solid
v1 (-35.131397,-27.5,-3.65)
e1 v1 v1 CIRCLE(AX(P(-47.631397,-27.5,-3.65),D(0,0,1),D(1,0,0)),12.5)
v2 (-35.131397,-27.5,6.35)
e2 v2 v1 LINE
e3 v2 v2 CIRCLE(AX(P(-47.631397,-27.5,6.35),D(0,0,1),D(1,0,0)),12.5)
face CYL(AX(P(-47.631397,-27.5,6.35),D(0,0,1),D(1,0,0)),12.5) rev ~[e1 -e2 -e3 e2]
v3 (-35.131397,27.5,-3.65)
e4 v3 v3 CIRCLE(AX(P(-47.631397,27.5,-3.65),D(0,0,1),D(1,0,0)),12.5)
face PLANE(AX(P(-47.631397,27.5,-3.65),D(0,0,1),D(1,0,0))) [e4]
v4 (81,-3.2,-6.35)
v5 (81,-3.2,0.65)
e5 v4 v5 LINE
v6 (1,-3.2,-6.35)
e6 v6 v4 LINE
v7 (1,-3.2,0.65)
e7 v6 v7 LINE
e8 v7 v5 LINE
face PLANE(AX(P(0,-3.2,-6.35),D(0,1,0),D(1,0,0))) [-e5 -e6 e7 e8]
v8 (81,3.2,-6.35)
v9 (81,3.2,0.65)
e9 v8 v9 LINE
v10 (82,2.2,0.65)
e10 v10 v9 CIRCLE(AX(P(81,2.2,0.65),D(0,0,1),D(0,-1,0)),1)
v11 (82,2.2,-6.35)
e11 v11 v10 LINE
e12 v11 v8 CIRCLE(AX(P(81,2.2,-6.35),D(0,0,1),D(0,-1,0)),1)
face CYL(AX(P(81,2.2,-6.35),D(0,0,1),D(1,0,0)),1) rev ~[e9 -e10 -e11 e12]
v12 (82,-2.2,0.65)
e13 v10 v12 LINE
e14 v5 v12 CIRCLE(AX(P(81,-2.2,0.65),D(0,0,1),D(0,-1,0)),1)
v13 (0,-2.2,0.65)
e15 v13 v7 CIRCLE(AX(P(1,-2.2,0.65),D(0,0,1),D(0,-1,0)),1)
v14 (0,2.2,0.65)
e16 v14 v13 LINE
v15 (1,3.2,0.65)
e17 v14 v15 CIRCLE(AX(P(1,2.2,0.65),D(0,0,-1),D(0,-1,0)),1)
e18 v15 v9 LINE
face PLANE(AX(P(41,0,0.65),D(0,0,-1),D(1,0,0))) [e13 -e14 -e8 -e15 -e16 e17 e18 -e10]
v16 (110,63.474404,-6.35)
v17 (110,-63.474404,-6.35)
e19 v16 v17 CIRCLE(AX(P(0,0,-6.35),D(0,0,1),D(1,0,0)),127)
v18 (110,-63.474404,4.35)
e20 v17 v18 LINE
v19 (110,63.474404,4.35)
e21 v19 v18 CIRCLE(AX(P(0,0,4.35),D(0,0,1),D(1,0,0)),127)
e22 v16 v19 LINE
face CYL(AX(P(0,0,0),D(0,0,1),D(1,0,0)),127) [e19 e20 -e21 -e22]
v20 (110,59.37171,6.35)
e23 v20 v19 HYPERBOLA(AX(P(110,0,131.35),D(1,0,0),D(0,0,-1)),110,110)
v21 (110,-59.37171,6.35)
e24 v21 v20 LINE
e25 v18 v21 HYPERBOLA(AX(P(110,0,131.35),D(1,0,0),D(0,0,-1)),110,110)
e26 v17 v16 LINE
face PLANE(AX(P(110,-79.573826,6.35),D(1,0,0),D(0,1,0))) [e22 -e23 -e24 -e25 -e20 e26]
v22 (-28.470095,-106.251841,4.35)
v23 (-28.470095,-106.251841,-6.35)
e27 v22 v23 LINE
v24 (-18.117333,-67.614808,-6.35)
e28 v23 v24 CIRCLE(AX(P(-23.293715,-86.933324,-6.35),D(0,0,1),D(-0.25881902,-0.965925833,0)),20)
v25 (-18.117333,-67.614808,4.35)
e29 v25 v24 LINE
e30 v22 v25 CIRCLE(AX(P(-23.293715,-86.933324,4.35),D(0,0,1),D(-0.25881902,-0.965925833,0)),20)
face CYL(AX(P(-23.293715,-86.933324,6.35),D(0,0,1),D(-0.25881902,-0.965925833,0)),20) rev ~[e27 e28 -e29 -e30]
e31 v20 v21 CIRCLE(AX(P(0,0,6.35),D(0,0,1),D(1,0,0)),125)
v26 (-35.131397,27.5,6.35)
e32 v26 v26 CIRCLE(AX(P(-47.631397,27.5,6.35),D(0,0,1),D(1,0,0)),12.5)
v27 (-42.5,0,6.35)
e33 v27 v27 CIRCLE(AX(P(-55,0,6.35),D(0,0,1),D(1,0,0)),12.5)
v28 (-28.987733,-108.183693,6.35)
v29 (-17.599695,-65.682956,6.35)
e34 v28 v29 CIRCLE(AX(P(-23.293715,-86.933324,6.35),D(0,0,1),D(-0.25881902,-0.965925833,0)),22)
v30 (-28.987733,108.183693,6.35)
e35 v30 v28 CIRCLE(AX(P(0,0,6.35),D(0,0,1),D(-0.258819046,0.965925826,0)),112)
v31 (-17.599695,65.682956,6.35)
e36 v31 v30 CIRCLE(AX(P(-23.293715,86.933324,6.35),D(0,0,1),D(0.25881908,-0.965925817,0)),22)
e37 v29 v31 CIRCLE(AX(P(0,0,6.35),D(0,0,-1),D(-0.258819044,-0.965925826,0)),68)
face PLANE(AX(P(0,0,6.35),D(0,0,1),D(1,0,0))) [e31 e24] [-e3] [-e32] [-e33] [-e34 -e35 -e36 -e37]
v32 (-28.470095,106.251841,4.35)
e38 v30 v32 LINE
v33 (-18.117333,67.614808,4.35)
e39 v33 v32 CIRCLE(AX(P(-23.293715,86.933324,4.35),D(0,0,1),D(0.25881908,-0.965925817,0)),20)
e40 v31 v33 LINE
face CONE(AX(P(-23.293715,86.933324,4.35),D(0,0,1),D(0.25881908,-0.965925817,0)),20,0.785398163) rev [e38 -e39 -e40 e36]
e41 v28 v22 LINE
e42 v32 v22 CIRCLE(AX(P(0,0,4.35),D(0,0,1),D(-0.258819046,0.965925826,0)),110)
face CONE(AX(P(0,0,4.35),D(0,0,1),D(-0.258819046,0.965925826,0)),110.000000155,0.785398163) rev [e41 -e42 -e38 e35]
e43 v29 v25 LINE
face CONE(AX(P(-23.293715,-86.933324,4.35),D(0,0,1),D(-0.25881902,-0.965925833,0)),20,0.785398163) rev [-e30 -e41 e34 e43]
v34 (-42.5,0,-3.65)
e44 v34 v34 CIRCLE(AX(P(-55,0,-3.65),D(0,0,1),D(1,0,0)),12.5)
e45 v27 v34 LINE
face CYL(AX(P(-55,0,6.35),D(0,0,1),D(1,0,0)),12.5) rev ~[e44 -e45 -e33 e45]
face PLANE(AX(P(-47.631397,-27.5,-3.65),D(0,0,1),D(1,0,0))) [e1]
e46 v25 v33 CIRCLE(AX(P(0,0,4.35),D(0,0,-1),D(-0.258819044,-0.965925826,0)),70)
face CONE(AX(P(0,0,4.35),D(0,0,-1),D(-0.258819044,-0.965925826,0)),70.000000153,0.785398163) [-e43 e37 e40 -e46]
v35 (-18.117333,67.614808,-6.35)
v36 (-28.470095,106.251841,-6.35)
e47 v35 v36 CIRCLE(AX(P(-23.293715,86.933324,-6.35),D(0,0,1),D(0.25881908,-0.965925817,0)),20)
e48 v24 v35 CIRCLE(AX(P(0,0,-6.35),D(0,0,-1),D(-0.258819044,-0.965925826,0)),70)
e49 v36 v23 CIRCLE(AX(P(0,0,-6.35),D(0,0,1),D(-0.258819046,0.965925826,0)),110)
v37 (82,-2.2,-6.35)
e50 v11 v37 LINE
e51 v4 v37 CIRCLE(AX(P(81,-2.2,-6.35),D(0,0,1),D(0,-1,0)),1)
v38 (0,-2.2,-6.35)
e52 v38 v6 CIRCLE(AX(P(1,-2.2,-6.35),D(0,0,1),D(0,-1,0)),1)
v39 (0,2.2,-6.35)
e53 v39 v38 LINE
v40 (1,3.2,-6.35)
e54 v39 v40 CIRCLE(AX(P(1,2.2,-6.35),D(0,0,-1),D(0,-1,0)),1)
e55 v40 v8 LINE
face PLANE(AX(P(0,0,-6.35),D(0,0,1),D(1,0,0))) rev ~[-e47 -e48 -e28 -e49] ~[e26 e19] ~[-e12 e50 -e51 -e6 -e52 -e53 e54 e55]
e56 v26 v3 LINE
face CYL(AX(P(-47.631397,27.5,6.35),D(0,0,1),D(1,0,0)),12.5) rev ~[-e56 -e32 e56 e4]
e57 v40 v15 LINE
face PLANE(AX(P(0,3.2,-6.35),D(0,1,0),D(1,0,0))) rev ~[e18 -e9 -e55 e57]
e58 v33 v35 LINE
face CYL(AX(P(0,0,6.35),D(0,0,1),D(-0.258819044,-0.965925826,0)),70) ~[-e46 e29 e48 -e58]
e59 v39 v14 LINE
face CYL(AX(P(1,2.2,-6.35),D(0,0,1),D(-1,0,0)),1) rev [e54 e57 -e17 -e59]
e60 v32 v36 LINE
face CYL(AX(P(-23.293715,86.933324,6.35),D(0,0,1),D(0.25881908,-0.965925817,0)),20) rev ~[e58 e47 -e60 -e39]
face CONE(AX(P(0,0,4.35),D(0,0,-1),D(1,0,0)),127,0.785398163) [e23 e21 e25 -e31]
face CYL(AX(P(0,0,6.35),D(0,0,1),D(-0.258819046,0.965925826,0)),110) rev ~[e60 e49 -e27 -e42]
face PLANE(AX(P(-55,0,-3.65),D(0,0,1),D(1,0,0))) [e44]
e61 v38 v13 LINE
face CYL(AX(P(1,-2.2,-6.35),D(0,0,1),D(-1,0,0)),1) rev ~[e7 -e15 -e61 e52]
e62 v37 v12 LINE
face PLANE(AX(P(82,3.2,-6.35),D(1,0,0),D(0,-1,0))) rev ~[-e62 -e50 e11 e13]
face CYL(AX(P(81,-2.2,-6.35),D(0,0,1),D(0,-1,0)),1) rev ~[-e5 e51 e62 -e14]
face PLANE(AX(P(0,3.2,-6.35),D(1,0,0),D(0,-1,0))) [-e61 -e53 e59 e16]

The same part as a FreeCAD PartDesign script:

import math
import FreeCAD as App
import Part
import Sketcher

V = App.Vector


def edges_at(feature, points):
    """Names of the edges that pass closest to the given points."""
    edges = feature.Shape.Edges
    near = lambda p: min(range(len(edges)), key=lambda i: edges[i].distToShape(Part.Vertex(*p))[0])
    return sorted({f"Edge{near(p) + 1}" for p in points})


def add_polygon(sketch, points):
    """Adds a closed chain of lines whose ends are joined by coincident constraints."""
    first, n = sketch.GeometryCount, len(points)
    for a, b in zip(points, points[1:] + points[:1]):
        sketch.addGeometry(Part.LineSegment(App.Vector(*a, 0), App.Vector(*b, 0)), False)
    for i in range(n):
        sketch.addConstraint(Sketcher.Constraint("Coincident", first + i, 2, first + (i + 1) % n, 1))

doc = App.newDocument("Part")
params = doc.addObject("Spreadsheet::Sheet", "Params")
for row, (alias, value) in enumerate([
    ("sketch1_diameter", "254 mm"),
    ("pad1_length", "12.7 mm"),
    ("sketch2_radius", "70 mm"),
    ("sketch2_radius2", "20 mm"),
    ("sketch3_diameter", "25 mm"),
    ("pocket2_length", "10 mm"),
    ("chamfer_size", "2 mm"),
    ("sketch5_width", "82 mm"),
    ("sketch5_height", "6.4 mm"),
    ("pocket4_length", "7 mm"),
    ("fillet_radius", "1 mm"),
], start=1):
    params.set(f"A{row}", alias)
    params.set(f"B{row}", "=" + value)
    params.setAlias(f"B{row}", alias)

body = doc.addObject("PartDesign::Body", "Body")

# Sketch on XY plane
sketch1 = body.newObject("Sketcher::SketchObject", "Sketch")
sketch1.AttachmentSupport = (doc.getObject("XY_Plane"), [""])
sketch1.MapMode = "FlatFace"
sketch1.addGeometry(Part.Circle(V(0, 0, 0), V(0, 0, 1), 127), False)
sketch1.addConstraint([
    Sketcher.Constraint("Coincident", 0, 3, -1, 1),
    Sketcher.Constraint("Diameter", 0, 254.0),
])
sketch1.setExpression("Constraints[1]", "Params.sketch1_diameter")
pad1 = body.newObject("PartDesign::Pad", "Pad")
pad1.Profile = sketch1
pad1.setExpression("Length", "Params.pad1_length")
pad1.Midplane = True

# Sketch on XY plane
sketch2 = body.newObject("Sketcher::SketchObject", "Sketch001")
sketch2.AttachmentSupport = (doc.getObject("XY_Plane"), [""])
sketch2.MapMode = "FlatFace"
sketch2.AttachmentOffset = App.Placement(V(0, 0, 6.35), App.Rotation())
sketch2.addGeometry([
    Part.ArcOfCircle(Part.Circle(V(0, 0, 0), V(0, 0, 1), 70), math.radians(105), math.radians(255)),
    Part.ArcOfCircle(Part.Circle(V(-23, 87, 0), V(0, 0, 1), 20), math.radians(-75), math.radians(105)),
    Part.ArcOfCircle(Part.Circle(V(0, 0, 0), V(0, 0, 1), 110), math.radians(105), math.radians(255)),
    Part.ArcOfCircle(Part.Circle(V(-23, -87, 0), V(0, 0, 1), 20), math.radians(-105), math.radians(75)),
], False)
sketch2.addConstraint([
    Sketcher.Constraint("Tangent", 0, 1, 1, 1),
    Sketcher.Constraint("Tangent", 1, 2, 2, 1),
    Sketcher.Constraint("Tangent", 2, 2, 3, 1),
    Sketcher.Constraint("Tangent", 3, 2, 0, 2),
    Sketcher.Constraint("Coincident", 0, 3, -1, 1),
    Sketcher.Constraint("Coincident", 2, 3, -1, 1),
    Sketcher.Constraint("Vertical", 1, 3, 3, 3),
    Sketcher.Constraint("Radius", 0, 70.0),
    Sketcher.Constraint("Radius", 1, 20.0),
    Sketcher.Constraint("DistanceY", -1, 1, 1, 2, 106.251841),
])
sketch2.setExpression("Constraints[7]", "Params.sketch2_radius")
sketch2.setExpression("Constraints[8]", "Params.sketch2_radius2")
pocket1 = body.newObject("PartDesign::Pocket", "Pocket")
pocket1.Profile = sketch2
pocket1.Type = "ThroughAll"

# Sketch on XY plane
sketch3 = body.newObject("Sketcher::SketchObject", "Sketch002")
sketch3.AttachmentSupport = (doc.getObject("XY_Plane"), [""])
sketch3.MapMode = "FlatFace"
sketch3.AttachmentOffset = App.Placement(V(0, 0, 6.35), App.Rotation())
sketch3.addGeometry([
    Part.Circle(V(-48, 28, 0), V(0, 0, 1), 12),
    Part.Circle(V(-55, 0, 0), V(0, 0, 1), 12),
    Part.Circle(V(-48, -28, 0), V(0, 0, 1), 12),
], False)
sketch3.addConstraint([
    Sketcher.Constraint("Equal", 0, 1),
    Sketcher.Constraint("Equal", 1, 2),
    Sketcher.Constraint("Symmetric", 0, 3, 2, 3, -1),
    Sketcher.Constraint("PointOnObject", 1, 3, -1),
    Sketcher.Constraint("Diameter", 0, 25.0),
    Sketcher.Constraint("DistanceX", 1, 3, -1, 1, 55.0),
    Sketcher.Constraint("DistanceY", 2, 3, 0, 3, 55.0),
    Sketcher.Constraint("DistanceX", 0, 3, -1, 1, 47.631397),
])
sketch3.setExpression("Constraints[4]", "Params.sketch3_diameter")
pocket2 = body.newObject("PartDesign::Pocket", "Pocket001")
pocket2.Profile = sketch3
pocket2.setExpression("Length", "Params.pocket2_length")
doc.recompute()

chamfer = body.newObject("PartDesign::Chamfer", "Chamfer")
chamfer.Base = (pocket2, edges_at(pocket2, [(-110, 0, 6.35), (-127, 0, 6.35)]))
chamfer.setExpression("Size", "Params.chamfer_size")

# Sketch on XY plane
sketch4 = body.newObject("Sketcher::SketchObject", "Sketch003")
sketch4.AttachmentSupport = (doc.getObject("XY_Plane"), [""])
sketch4.MapMode = "FlatFace"
sketch4.AttachmentOffset = App.Placement(V(0, 0, 6.35), App.Rotation())
add_polygon(sketch4, [(110, 76), (110, -80), (139, -80), (139, 76)])  # lines 0-3
sketch4.addConstraint([
    Sketcher.Constraint("Vertical", 0),
    Sketcher.Constraint("Horizontal", 1),
    Sketcher.Constraint("Vertical", 2),
    Sketcher.Constraint("Horizontal", 3),
    Sketcher.Constraint("DistanceX", -1, 1, 0, 2, 110.0),
    Sketcher.Constraint("DistanceY", 0, 2, 0, 1, 155.121999),
    Sketcher.Constraint("DistanceX", 1, 1, 1, 2, 28.838306),
    Sketcher.Constraint("DistanceY", 0, 2, -1, 1, 79.573826),
])
pocket3 = body.newObject("PartDesign::Pocket", "Pocket002")
pocket3.Profile = sketch4
pocket3.Type = "ThroughAll"

# Sketch on XY plane
sketch5 = body.newObject("Sketcher::SketchObject", "Sketch004")
sketch5.AttachmentSupport = (doc.getObject("XY_Plane"), [""])
sketch5.MapMode = "FlatFace"
sketch5.AttachmentOffset = App.Placement(V(0, 0, -6.35), App.Rotation())
add_polygon(sketch5, [(0, -3), (0, 3), (82, 3), (82, -3)])  # lines 0-3
sketch5.addConstraint([
    Sketcher.Constraint("Vertical", 0),
    Sketcher.Constraint("Horizontal", 1),
    Sketcher.Constraint("Vertical", 2),
    Sketcher.Constraint("Horizontal", 3),
    Sketcher.Constraint("Symmetric", 0, 2, 3, 2, -1, 1),
    Sketcher.Constraint("DistanceX", 1, 1, 1, 2, 82.0),
    Sketcher.Constraint("DistanceY", 0, 1, 0, 2, 6.4),
])
sketch5.setExpression("Constraints[9]", "Params.sketch5_width")
sketch5.setExpression("Constraints[10]", "Params.sketch5_height")
pocket4 = body.newObject("PartDesign::Pocket", "Pocket003")
pocket4.Profile = sketch5
pocket4.setExpression("Length", "Params.pocket4_length")
pocket4.Reversed = True
doc.recompute()

fillet = body.newObject("PartDesign::Fillet", "Fillet")
fillet.Base = (pocket4, edges_at(pocket4, [
    (0, -3.2, -2.85),
    (0, 3.2, -2.85),
    (82, 3.2, -2.85),
    (82, -3.2, -2.85),
]))
fillet.setExpression("Radius", "Params.fillet_radius")

doc.recompute()
